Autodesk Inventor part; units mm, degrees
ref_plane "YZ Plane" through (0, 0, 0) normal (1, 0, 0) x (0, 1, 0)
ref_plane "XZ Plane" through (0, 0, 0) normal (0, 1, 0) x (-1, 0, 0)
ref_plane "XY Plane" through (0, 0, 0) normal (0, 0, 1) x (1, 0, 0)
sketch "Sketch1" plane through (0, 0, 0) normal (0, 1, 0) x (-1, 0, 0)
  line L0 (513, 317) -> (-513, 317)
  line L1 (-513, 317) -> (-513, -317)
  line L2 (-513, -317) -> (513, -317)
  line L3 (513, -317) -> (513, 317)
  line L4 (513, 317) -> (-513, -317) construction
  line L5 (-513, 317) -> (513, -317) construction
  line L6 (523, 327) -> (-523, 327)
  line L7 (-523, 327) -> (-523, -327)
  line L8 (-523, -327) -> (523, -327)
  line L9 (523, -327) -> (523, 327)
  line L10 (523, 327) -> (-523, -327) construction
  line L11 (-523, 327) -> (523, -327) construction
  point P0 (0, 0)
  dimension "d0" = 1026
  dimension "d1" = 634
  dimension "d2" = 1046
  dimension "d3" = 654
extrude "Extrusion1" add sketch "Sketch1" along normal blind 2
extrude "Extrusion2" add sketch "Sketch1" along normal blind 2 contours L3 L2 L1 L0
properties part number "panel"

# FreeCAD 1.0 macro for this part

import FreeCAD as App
import Part
import Sketcher
Q = App.Units.Quantity


def add_polygon(sketch, points):
    """Adds a closed chain of lines whose ends are joined by coincident constraints."""
    first, n = sketch.GeometryCount, len(points)
    for a, b in zip(points, points[1:] + points[:1]):
        sketch.addGeometry(Part.LineSegment(App.Vector(*a, 0), App.Vector(*b, 0)), False)
    for i in range(n):
        sketch.addConstraint(Sketcher.Constraint("Coincident", first + i, 2, first + (i + 1) % n, 1))

doc = App.newDocument("Part")
body = doc.addObject("PartDesign::Body", "Body")

sketch1 = body.newObject("Sketcher::SketchObject", "Sketch")
sketch1.AttachmentSupport = (doc.getObject("XZ_Plane"), [""])
sketch1.MapMode = "FlatFace"
add_polygon(sketch1, [(-523, -327), (-523, 327), (523, 327), (523, -327)])
add_polygon(sketch1, [(513, 317), (-513, 317), (-513, -317), (513, -317)])
sketch1.addConstraint([
    Sketcher.Constraint("Vertical", 0),
    Sketcher.Constraint("Horizontal", 1),
    Sketcher.Constraint("Vertical", 2),
    Sketcher.Constraint("Horizontal", 3),
    Sketcher.Constraint("Horizontal", 4),
    Sketcher.Constraint("Vertical", 5),
    Sketcher.Constraint("Horizontal", 6),
    Sketcher.Constraint("Vertical", 7),
    Sketcher.Constraint("Symmetric", 0, 2, 2, 2, -1, 1),
    Sketcher.Constraint("Symmetric", 4, 2, 6, 2, -1, 1),
    Sketcher.Constraint("DistanceX", 1, 1, 1, 2, Q("1046 mm")),
    Sketcher.Constraint("DistanceX", 4, 2, 4, 1, Q("1026 mm")),
    Sketcher.Constraint("DistanceY", 0, 1, 0, 2, Q("654 mm")),
    Sketcher.Constraint("DistanceY", 5, 2, 5, 1, Q("634 mm")),
])
pad1 = body.newObject("PartDesign::Pad", "Pad")
pad1.Profile = sketch1
pad1.Length = 2
pad1.Reversed = True

sketch2 = body.newObject("Sketcher::SketchObject", "Sketch001")
sketch2.AttachmentSupport = (doc.getObject("XZ_Plane"), [""])
sketch2.MapMode = "FlatFace"
add_polygon(sketch2, [(-513, -317), (-513, 317), (513, 317), (513, -317)])
sketch2.addConstraint([
    Sketcher.Constraint("Vertical", 0),
    Sketcher.Constraint("Horizontal", 1),
    Sketcher.Constraint("Vertical", 2),
    Sketcher.Constraint("Horizontal", 3),
    Sketcher.Constraint("Symmetric", 0, 2, 2, 2, -1, 1),
    Sketcher.Constraint("DistanceX", 1, 1, 1, 2, Q("1026 mm")),
    Sketcher.Constraint("DistanceY", 0, 1, 0, 2, Q("634 mm")),
])
pad2 = body.newObject("PartDesign::Pad", "Pad001")
pad2.Profile = sketch2
pad2.Length = 2
pad2.Reversed = True

doc.recompute()
